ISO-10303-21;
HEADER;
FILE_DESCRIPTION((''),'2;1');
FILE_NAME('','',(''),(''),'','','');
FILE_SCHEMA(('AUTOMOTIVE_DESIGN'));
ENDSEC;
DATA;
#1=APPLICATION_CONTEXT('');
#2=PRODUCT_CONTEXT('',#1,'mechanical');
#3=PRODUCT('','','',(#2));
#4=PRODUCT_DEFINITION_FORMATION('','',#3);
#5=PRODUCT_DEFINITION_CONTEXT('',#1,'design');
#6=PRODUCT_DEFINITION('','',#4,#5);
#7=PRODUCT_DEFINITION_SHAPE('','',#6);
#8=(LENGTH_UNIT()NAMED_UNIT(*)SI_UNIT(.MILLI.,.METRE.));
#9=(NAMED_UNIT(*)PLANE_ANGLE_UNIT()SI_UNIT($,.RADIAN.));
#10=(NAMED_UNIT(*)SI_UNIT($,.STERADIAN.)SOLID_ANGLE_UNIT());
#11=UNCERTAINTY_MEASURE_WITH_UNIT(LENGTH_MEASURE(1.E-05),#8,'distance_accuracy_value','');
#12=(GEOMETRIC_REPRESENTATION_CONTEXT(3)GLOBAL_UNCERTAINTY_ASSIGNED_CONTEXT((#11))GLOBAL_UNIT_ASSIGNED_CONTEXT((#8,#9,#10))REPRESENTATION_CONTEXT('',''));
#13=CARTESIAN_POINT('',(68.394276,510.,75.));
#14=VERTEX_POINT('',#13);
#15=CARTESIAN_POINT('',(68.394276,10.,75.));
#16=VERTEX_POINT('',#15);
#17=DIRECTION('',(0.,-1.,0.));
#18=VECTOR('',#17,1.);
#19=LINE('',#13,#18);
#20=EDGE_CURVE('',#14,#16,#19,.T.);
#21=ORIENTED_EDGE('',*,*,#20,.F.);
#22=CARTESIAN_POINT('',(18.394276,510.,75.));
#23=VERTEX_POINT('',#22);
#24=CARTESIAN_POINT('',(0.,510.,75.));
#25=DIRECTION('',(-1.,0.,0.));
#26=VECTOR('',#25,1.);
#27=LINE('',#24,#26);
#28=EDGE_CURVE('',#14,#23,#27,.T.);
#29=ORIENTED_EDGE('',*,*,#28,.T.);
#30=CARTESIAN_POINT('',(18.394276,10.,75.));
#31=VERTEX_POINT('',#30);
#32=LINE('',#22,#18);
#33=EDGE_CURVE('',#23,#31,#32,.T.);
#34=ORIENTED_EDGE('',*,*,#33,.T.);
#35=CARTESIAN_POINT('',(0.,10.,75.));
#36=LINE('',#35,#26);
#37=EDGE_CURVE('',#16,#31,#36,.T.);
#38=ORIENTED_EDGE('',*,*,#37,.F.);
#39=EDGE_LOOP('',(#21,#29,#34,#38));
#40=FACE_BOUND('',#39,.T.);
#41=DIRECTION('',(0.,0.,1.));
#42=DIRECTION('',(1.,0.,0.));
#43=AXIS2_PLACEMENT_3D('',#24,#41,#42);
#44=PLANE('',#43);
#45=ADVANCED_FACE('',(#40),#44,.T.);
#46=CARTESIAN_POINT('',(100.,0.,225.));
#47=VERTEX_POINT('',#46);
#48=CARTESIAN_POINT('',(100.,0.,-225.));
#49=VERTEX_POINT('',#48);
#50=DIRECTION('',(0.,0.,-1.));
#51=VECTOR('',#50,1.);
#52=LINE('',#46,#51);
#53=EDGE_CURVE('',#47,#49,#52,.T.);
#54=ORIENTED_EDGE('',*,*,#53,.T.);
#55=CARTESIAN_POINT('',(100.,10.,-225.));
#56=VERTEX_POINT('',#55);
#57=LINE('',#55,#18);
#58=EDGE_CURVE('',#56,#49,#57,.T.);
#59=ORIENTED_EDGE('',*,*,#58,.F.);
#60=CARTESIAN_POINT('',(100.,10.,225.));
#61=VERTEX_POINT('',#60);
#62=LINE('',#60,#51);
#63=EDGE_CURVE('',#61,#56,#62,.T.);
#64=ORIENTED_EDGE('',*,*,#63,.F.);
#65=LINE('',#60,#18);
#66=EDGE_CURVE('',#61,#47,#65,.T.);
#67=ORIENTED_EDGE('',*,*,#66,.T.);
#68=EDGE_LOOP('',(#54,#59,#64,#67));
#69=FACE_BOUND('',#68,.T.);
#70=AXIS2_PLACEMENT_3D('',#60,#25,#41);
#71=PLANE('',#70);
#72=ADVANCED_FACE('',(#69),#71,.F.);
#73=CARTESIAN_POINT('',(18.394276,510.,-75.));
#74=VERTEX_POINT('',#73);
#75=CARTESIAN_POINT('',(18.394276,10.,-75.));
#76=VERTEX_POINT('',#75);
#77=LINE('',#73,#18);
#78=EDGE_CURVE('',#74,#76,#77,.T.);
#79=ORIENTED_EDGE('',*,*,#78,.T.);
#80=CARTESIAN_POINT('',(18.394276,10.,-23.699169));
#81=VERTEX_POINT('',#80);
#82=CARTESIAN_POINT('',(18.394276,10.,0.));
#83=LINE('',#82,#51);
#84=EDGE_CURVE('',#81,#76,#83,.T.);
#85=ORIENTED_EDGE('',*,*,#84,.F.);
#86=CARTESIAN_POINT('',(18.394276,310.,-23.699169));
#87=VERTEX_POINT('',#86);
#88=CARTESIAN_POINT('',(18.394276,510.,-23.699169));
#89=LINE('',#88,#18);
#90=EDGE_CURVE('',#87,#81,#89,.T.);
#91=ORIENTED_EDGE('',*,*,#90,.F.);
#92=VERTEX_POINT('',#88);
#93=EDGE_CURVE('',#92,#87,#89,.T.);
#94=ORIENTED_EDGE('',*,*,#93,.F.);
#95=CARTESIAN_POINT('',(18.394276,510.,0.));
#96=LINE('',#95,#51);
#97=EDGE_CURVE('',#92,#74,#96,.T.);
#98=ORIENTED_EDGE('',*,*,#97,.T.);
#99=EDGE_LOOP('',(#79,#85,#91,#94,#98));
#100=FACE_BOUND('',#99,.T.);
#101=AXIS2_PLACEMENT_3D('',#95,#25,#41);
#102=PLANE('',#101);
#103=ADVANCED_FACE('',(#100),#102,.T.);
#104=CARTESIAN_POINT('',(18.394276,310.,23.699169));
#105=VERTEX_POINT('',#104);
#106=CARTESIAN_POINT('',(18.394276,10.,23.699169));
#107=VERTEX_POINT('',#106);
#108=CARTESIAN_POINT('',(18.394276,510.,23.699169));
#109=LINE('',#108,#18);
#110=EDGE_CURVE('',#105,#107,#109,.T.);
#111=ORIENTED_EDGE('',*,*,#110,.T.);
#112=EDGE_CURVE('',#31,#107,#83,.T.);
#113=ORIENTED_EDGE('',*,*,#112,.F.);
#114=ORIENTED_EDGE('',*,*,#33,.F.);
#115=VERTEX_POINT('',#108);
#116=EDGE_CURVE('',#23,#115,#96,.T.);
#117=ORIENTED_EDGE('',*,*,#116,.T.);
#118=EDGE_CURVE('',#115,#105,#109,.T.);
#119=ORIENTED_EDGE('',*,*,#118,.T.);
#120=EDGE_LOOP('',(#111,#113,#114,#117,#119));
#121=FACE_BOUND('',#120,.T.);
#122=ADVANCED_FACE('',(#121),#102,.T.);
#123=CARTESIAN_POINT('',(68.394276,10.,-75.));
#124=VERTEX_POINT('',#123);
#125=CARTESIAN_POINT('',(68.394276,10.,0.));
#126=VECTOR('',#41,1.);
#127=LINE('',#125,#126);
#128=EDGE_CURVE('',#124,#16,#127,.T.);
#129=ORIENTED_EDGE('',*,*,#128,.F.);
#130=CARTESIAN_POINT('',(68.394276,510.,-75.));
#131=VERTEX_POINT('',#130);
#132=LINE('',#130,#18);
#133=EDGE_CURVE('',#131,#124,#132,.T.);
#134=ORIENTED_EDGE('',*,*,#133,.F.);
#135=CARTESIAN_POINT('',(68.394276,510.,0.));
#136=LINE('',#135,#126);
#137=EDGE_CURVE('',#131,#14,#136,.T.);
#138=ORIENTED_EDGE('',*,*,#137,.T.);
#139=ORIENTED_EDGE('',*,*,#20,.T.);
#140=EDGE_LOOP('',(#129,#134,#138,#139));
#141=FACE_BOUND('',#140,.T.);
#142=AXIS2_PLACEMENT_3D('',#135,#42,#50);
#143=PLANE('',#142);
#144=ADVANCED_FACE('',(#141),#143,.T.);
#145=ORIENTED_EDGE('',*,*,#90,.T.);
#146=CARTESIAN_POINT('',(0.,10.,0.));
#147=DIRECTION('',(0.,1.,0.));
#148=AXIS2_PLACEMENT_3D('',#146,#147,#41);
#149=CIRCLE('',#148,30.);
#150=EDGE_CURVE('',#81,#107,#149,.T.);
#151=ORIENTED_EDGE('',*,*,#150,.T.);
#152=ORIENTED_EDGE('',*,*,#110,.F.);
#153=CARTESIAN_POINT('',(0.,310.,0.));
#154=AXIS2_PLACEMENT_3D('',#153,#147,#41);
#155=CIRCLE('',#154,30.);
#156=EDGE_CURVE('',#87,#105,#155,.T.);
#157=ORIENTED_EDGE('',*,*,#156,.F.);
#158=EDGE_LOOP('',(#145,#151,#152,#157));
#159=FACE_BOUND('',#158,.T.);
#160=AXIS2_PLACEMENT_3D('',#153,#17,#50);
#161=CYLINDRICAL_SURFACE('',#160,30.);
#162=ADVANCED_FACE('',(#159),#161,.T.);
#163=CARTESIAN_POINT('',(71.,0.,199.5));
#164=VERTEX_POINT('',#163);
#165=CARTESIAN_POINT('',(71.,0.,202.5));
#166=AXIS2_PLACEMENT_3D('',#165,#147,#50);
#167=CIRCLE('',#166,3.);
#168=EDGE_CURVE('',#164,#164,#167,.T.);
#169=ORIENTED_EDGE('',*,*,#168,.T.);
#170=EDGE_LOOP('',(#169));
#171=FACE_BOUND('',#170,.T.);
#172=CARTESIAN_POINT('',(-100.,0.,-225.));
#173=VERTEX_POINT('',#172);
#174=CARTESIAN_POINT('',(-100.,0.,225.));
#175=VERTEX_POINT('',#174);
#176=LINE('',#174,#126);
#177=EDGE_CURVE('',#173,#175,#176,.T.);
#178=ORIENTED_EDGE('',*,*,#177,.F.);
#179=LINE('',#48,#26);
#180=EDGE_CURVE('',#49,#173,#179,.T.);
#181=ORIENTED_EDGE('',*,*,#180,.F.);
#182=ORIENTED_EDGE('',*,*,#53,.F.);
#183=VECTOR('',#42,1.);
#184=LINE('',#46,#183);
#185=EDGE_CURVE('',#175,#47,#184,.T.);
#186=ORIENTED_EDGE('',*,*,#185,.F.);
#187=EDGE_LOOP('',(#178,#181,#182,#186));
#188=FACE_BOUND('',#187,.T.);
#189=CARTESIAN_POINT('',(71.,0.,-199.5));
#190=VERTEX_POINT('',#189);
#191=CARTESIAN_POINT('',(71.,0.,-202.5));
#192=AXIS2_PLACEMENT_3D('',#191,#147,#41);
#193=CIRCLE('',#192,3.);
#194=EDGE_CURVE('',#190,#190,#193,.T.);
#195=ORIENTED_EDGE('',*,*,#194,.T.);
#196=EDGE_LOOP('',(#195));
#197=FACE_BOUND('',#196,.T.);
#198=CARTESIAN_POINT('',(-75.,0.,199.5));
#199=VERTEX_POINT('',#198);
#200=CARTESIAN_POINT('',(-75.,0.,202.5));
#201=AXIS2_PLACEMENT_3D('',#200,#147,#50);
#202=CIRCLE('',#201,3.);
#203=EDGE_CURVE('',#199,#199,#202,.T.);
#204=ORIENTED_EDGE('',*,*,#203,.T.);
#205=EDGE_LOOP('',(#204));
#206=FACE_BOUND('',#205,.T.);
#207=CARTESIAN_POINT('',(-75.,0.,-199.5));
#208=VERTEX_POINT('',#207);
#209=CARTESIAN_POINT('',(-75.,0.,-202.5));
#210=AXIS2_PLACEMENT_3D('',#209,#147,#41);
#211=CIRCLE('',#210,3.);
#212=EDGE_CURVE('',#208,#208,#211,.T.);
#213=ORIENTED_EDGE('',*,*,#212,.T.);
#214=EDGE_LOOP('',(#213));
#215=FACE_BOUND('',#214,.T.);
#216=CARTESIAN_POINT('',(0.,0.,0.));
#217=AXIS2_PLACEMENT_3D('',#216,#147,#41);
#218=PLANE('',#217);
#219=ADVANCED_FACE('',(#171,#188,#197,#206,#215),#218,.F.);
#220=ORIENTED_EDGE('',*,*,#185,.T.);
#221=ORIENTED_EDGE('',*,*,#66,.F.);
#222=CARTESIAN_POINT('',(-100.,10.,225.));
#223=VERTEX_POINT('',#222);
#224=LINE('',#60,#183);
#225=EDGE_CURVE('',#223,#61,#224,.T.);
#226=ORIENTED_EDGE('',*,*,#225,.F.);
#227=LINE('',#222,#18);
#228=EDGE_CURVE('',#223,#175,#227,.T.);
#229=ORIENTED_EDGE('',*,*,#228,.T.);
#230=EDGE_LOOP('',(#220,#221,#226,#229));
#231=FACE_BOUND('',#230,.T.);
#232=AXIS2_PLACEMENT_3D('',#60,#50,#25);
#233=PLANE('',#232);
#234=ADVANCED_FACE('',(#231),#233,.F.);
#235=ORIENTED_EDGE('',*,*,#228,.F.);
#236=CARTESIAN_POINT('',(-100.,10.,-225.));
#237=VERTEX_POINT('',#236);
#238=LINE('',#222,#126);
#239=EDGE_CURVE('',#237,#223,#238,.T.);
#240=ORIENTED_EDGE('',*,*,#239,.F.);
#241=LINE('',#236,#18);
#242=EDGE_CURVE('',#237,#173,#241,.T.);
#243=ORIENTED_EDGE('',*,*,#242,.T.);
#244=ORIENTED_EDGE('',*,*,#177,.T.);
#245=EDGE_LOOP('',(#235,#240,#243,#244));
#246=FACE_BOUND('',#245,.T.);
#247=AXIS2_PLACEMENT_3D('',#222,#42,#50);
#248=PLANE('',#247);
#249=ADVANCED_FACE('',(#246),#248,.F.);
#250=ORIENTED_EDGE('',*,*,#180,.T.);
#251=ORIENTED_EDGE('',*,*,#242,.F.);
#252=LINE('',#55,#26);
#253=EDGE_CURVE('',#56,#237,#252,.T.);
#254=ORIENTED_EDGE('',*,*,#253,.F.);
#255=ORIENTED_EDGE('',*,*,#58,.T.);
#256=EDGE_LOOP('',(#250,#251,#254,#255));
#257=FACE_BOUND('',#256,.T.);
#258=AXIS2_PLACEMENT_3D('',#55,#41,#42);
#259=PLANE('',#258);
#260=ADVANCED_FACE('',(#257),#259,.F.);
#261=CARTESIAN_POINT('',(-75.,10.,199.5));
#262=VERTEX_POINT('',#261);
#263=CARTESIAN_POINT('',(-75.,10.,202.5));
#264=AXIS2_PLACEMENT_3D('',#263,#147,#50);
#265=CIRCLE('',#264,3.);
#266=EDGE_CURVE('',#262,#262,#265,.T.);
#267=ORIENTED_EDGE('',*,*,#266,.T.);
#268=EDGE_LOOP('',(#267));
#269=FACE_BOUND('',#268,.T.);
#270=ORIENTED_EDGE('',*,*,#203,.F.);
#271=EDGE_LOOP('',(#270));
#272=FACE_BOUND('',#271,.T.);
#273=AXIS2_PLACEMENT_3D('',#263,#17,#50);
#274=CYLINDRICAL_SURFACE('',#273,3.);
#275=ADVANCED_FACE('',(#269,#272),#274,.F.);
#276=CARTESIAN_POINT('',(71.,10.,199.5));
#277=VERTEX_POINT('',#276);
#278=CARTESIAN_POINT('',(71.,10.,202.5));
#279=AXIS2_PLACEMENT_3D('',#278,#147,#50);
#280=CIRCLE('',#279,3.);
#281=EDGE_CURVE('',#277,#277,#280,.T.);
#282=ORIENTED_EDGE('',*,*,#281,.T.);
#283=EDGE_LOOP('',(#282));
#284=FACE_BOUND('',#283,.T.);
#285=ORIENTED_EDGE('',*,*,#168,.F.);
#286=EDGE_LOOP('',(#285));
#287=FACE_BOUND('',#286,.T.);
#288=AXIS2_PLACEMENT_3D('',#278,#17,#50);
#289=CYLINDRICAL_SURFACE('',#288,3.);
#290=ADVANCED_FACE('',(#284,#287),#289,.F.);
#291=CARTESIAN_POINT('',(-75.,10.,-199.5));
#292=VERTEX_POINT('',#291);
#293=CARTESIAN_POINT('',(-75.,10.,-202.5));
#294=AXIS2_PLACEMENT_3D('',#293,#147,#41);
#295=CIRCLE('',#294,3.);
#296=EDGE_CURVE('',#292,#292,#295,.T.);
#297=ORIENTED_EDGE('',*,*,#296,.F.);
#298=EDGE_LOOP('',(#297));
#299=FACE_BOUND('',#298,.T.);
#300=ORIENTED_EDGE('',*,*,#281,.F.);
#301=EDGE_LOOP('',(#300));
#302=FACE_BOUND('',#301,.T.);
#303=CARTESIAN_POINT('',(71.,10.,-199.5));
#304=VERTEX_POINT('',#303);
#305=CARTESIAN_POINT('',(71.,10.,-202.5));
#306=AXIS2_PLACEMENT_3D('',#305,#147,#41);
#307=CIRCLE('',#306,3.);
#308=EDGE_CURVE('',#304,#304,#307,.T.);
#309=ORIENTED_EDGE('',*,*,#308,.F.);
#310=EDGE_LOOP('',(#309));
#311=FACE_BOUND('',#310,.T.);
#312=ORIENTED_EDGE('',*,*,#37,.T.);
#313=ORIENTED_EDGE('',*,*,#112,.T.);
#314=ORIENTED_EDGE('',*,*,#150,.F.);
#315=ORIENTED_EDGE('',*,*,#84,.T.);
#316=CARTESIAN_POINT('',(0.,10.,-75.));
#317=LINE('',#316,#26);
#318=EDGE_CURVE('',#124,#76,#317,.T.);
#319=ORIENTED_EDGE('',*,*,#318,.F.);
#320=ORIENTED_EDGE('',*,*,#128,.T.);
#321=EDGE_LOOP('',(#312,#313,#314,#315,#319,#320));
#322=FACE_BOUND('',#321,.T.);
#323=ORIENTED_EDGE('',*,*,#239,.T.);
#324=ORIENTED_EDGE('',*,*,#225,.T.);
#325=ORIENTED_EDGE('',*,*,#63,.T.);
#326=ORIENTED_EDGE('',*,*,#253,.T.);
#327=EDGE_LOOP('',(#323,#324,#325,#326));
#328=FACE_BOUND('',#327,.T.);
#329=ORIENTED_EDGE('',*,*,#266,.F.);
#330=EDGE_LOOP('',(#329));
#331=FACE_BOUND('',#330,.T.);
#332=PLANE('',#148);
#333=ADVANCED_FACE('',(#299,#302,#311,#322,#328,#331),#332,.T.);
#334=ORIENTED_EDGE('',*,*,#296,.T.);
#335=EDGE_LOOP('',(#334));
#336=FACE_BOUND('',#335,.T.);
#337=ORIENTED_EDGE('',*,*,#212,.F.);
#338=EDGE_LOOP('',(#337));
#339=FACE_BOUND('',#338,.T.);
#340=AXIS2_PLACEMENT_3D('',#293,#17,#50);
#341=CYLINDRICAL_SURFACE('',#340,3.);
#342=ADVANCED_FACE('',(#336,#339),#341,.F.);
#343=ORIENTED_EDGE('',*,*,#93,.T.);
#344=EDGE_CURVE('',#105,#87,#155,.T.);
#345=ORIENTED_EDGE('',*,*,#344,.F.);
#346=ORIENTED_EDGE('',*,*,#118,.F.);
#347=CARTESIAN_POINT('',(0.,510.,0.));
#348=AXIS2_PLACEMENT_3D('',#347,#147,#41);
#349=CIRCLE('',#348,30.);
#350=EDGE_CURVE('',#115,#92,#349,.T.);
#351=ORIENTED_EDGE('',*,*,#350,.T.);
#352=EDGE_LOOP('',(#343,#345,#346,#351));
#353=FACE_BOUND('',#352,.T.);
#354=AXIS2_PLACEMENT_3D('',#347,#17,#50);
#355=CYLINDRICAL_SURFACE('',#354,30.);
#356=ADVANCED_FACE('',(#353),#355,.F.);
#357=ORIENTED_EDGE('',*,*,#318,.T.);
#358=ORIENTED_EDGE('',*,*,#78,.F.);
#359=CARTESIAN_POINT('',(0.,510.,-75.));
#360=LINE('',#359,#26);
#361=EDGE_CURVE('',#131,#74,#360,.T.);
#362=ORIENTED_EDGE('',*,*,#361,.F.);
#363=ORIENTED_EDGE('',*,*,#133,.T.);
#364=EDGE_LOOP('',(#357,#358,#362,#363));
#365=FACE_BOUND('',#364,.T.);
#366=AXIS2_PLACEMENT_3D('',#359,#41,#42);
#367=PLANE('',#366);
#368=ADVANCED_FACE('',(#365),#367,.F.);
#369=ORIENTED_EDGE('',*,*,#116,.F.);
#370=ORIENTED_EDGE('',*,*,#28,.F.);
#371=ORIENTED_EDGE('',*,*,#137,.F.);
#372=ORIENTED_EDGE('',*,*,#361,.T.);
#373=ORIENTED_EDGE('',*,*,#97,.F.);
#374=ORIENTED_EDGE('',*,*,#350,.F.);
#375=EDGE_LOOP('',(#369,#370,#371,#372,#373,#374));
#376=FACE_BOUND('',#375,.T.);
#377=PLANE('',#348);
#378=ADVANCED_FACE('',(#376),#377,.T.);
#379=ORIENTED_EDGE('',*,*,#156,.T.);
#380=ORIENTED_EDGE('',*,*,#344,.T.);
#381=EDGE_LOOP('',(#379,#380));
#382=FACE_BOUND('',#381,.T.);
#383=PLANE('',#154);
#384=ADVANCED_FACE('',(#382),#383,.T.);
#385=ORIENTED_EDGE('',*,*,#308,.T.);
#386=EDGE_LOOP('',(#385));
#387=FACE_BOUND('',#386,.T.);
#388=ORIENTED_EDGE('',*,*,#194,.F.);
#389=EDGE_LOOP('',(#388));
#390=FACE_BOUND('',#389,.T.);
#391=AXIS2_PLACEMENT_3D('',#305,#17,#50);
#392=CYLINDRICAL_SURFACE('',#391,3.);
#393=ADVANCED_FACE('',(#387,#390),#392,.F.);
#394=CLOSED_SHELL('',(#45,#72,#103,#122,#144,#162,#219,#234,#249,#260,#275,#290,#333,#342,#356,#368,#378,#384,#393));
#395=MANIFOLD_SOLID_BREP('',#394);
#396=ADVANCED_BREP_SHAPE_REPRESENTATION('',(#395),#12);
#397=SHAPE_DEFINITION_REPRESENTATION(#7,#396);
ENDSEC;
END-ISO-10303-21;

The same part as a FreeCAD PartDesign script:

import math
import FreeCAD as App
import Part
import Sketcher

V = App.Vector
Q = App.Units.Quantity


def add_polygon(sketch, points):
    """Adds a closed chain of lines whose ends are joined by coincident constraints."""
    first, n = sketch.GeometryCount, len(points)
    for a, b in zip(points, points[1:] + points[:1]):
        sketch.addGeometry(Part.LineSegment(App.Vector(*a, 0), App.Vector(*b, 0)), False)
    for i in range(n):
        sketch.addConstraint(Sketcher.Constraint("Coincident", first + i, 2, first + (i + 1) % n, 1))

doc = App.newDocument("Part")
body = doc.addObject("PartDesign::Body", "Body")

# Sketch on XZ plane
sketch1 = doc.addObject("Sketcher::SketchObject", "Sketch")
body.addObject(sketch1)
sketch1.AttachmentSupport = (doc.XZ_Plane, [""])
sketch1.MapMode = "FlatFace"
add_polygon(sketch1, [(-100, -225), (-100, 225), (100, 225), (100, -225)])  # lines 0-3
sketch1.addGeometry(Part.Circle(V(-75, 202.5, 0), V(0, 0, 1), 3), False)  # 4
sketch1.addGeometry(Part.Circle(V(71, 202.5, 0), V(0, 0, 1), 3), False)  # 5
sketch1.addGeometry(Part.Circle(V(-75, -202.5, 0), V(0, 0, 1), 3), False)  # 6
sketch1.addGeometry(Part.Circle(V(71, -202.5, 0), V(0, 0, 1), 3), False)  # 7
sketch1.addConstraint(Sketcher.Constraint("Vertical", 0))
sketch1.addConstraint(Sketcher.Constraint("Horizontal", 1))
sketch1.addConstraint(Sketcher.Constraint("Vertical", 2))
sketch1.addConstraint(Sketcher.Constraint("Horizontal", 3))
sketch1.addConstraint(Sketcher.Constraint("Equal", 4, 5))
sketch1.addConstraint(Sketcher.Constraint("Equal", 5, 6))
sketch1.addConstraint(Sketcher.Constraint("Equal", 6, 7))
sketch1.addConstraint(Sketcher.Constraint("Symmetric", 0, 2, 2, 2, -1, 1))
sketch1.addConstraint(Sketcher.Constraint("Symmetric", 4, 3, 6, 3, -1))
sketch1.addConstraint(Sketcher.Constraint("Symmetric", 5, 3, 7, 3, -1))
sketch1.addConstraint(Sketcher.Constraint("Horizontal", 4, 3, 5, 3))
sketch1.addConstraint(Sketcher.Constraint("Diameter", 4, Q("6 mm")))
sketch1.addConstraint(Sketcher.Constraint("DistanceX", 1, 1, 1, 2, Q("200 mm")))
sketch1.addConstraint(Sketcher.Constraint("DistanceY", 0, 1, 0, 2, Q("450 mm")))
sketch1.addConstraint(Sketcher.Constraint("DistanceX", 4, 3, -1, 1, Q("75 mm")))
sketch1.addConstraint(Sketcher.Constraint("DistanceX", -1, 1, 5, 3, Q("71 mm")))
sketch1.addConstraint(Sketcher.Constraint("DistanceY", 6, 3, 4, 3, Q("405 mm")))
pad1 = doc.addObject("PartDesign::Pad", "Pad")
body.addObject(pad1)
pad1.Profile = sketch1
pad1.Length = 10
pad1.Reversed = True

# Sketch on XZ plane
sketch2 = doc.addObject("Sketcher::SketchObject", "Sketch001")
body.addObject(sketch2)
sketch2.AttachmentSupport = (doc.XZ_Plane, [""])
sketch2.MapMode = "FlatFace"
sketch2.AttachmentOffset = App.Placement(V(0, 0, -10), App.Rotation())
sketch2.addGeometry(Part.Circle(V(0, 0, 0), V(0, 0, 1), 30), False)
sketch2.addConstraint(Sketcher.Constraint("Coincident", 0, 3, -1, 1))
sketch2.addConstraint(Sketcher.Constraint("Diameter", 0, Q("60 mm")))
pad2 = doc.addObject("PartDesign::Pad", "Pad001")
body.addObject(pad2)
pad2.Profile = sketch2
pad2.Length = 300
pad2.Reversed = True

# Sketch on XZ plane
sketch3 = doc.addObject("Sketcher::SketchObject", "Sketch002")
body.addObject(sketch3)
sketch3.AttachmentSupport = (doc.XZ_Plane, [""])
sketch3.MapMode = "FlatFace"
sketch3.AttachmentOffset = App.Placement(V(0, 0, -10), App.Rotation())
sketch3.addGeometry(Part.LineSegment(V(18.394276, -75, 0), V(18.394276, -23.699169, 0)), False)
sketch3.addGeometry(Part.ArcOfCircle(Part.Circle(V(0, 0, 0), V(0, 0, 1), 30), math.radians(-52.182923), math.radians(0)), False)
sketch3.addGeometry(Part.ArcOfCircle(Part.Circle(V(0, 0, 0), V(0, 0, 1), 30), math.radians(0), math.radians(52.182923)), False)
sketch3.addGeometry(Part.LineSegment(V(18.394276, 23.699169, 0), V(18.394276, 75, 0)), False)
sketch3.addGeometry(Part.LineSegment(V(18.394276, 75, 0), V(68.394276, 75, 0)), False)
sketch3.addGeometry(Part.LineSegment(V(68.394276, 75, 0), V(68.394276, -75, 0)), False)
sketch3.addGeometry(Part.LineSegment(V(68.394276, -75, 0), V(18.394276, -75, 0)), False)
sketch3.addConstraint(Sketcher.Constraint("Coincident", 0, 2, 1, 1))
sketch3.addConstraint(Sketcher.Constraint("Tangent", 1, 2, 2, 1))
sketch3.addConstraint(Sketcher.Constraint("Coincident", 2, 2, 3, 1))
sketch3.addConstraint(Sketcher.Constraint("Coincident", 3, 2, 4, 1))
sketch3.addConstraint(Sketcher.Constraint("Coincident", 4, 2, 5, 1))
sketch3.addConstraint(Sketcher.Constraint("Coincident", 5, 2, 6, 1))
sketch3.addConstraint(Sketcher.Constraint("Coincident", 6, 2, 0, 1))
sketch3.addConstraint(Sketcher.Constraint("Vertical", 0))
sketch3.addConstraint(Sketcher.Constraint("Vertical", 3))
sketch3.addConstraint(Sketcher.Constraint("Horizontal", 4))
sketch3.addConstraint(Sketcher.Constraint("Vertical", 5))
sketch3.addConstraint(Sketcher.Constraint("Horizontal", 6))
sketch3.addConstraint(Sketcher.Constraint("Coincident", 1, 3, -1, 1))
sketch3.addConstraint(Sketcher.Constraint("Equal", 1, 2))
sketch3.addConstraint(Sketcher.Constraint("Symmetric", 3, 2, 6, 2, -1))
sketch3.addConstraint(Sketcher.Constraint("PointOnObject", 1, 2, -1))
sketch3.addConstraint(Sketcher.Constraint("Radius", 1, Q("30 mm")))
sketch3.addConstraint(Sketcher.Constraint("DistanceX", 4, 1, 4, 2, Q("50 mm")))
sketch3.addConstraint(Sketcher.Constraint("DistanceY", 5, 2, 5, 1, Q("150 mm")))
sketch3.addConstraint(Sketcher.Constraint("DistanceY", 0, 1, 0, 2, Q("51.300831 mm")))
pad3 = doc.addObject("PartDesign::Pad", "Pad002")
body.addObject(pad3)
pad3.Profile = sketch3
pad3.Length = 500
pad3.Reversed = True

doc.recompute()
